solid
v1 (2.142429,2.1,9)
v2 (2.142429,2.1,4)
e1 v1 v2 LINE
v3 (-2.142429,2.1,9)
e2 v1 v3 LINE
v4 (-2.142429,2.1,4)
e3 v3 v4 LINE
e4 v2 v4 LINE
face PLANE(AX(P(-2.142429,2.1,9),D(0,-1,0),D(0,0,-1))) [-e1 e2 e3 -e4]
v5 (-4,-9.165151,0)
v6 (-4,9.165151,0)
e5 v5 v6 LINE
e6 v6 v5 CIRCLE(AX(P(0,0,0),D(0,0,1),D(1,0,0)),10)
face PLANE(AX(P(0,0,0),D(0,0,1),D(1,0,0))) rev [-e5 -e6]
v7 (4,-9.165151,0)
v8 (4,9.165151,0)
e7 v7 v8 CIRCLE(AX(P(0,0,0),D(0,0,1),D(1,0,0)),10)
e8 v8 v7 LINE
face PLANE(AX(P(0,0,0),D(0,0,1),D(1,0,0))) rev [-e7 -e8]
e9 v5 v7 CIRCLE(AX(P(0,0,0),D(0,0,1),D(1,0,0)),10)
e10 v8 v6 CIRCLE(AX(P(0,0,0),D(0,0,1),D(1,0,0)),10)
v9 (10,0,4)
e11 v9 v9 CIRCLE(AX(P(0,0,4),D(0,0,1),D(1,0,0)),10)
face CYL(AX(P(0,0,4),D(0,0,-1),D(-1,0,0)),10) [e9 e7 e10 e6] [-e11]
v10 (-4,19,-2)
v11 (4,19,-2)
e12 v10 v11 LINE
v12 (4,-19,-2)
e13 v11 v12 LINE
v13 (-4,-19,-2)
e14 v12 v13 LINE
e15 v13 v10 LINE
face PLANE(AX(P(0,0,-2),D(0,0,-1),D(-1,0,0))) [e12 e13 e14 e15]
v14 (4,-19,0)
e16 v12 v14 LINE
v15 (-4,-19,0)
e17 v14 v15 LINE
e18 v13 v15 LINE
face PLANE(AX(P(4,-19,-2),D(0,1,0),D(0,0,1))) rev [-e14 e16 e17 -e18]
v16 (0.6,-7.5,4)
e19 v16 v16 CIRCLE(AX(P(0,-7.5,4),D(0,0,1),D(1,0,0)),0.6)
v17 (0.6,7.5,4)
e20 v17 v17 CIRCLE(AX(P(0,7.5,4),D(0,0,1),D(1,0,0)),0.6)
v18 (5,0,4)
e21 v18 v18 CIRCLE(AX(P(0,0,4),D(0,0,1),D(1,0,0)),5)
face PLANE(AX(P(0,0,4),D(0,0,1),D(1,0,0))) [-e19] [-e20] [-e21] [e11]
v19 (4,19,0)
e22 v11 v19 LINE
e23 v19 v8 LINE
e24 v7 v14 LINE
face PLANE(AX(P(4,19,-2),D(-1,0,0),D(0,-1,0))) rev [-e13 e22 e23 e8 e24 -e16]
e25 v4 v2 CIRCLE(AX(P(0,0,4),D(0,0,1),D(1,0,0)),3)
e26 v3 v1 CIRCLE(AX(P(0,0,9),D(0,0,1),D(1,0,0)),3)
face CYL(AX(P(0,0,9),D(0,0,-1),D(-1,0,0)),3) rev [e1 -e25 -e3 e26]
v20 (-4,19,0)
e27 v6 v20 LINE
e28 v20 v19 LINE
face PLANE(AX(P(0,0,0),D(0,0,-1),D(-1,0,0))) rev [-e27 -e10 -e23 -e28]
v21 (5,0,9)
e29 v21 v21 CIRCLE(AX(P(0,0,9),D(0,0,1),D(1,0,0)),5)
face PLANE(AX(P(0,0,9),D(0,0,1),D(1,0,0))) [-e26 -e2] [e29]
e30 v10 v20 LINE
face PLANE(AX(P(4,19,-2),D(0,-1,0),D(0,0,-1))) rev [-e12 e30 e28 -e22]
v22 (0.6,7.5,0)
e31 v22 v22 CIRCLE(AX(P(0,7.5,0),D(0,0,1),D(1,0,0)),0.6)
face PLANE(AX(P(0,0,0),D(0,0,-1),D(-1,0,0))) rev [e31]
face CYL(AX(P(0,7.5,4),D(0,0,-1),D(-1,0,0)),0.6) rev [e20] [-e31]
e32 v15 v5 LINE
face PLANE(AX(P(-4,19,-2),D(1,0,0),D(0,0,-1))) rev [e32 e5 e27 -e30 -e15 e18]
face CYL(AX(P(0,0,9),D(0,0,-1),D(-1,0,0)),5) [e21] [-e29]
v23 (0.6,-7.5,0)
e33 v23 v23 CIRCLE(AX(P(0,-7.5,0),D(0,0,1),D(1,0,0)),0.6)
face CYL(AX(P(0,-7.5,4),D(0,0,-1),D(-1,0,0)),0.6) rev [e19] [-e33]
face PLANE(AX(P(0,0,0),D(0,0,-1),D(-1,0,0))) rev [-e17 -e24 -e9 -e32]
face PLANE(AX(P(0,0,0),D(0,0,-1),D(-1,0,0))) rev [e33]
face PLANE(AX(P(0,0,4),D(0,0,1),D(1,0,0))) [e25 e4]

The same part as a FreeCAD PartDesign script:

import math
import FreeCAD as App
import Part
import Sketcher
from FreeCAD import Vector
Q = App.Units.Quantity


def add_polygon(sketch, points):
    """Adds a closed chain of lines whose ends are joined by coincident constraints."""
    first, n = sketch.GeometryCount, len(points)
    for a, b in zip(points, points[1:] + points[:1]):
        sketch.addGeometry(Part.LineSegment(App.Vector(*a, 0), App.Vector(*b, 0)), False)
    for i in range(n):
        sketch.addConstraint(Sketcher.Constraint("Coincident", first + i, 2, first + (i + 1) % n, 1))

doc = App.newDocument("Part")
params = doc.addObject("Spreadsheet::Sheet", "Params")
for row, (alias, value) in enumerate([
    ("sketch1_diameter", "20 mm"),
    ("sketch1_diameter2", "1.2 mm"),
    ("pad1_length", "4 mm"),
    ("sketch2_diameter", "10 mm"),
    ("sketch2_radius", "3 mm"),
    ("pad2_length", "5 mm"),
    ("sketch3_width", "8 mm"),
    ("sketch3_height", "38 mm"),
    ("pad3_length", "2 mm"),
], start=1):
    params.set(f"A{row}", alias)
    params.set(f"B{row}", "=" + value)
    params.setAlias(f"B{row}", alias)

body = doc.addObject("PartDesign::Body", "Body")

# Sketch on XY plane
sketch1 = body.newObject("Sketcher::SketchObject", "Sketch")
sketch1.AttachmentSupport = (doc.getObject("XY_Plane"), [""])
sketch1.MapMode = "FlatFace"
sketch1.addGeometry([
    Part.Circle(Vector(0, 0, 0), Vector(0, 0, 1), 10),
    Part.Circle(Vector(0, -7.5, 0), Vector(0, 0, 1), 0.6),
    Part.Circle(Vector(0, 7.5, 0), Vector(0, 0, 1), 0.6),
], False)
sketch1.addConstraint([
    Sketcher.Constraint("Coincident", 0, 3, -1, 1),
    Sketcher.Constraint("Equal", 1, 2),
    Sketcher.Constraint("Symmetric", 1, 3, 2, 3, -1, 1),
    Sketcher.Constraint("PointOnObject", 1, 3, -2),
    Sketcher.Constraint("Diameter", 0, Q("20 mm")),
    Sketcher.Constraint("Diameter", 1, Q("1.2 mm")),
    Sketcher.Constraint("DistanceY", 1, 3, 2, 3, Q("15 mm")),
])
sketch1.setExpression("Constraints[4]", "Params.sketch1_diameter")
sketch1.setExpression("Constraints[5]", "Params.sketch1_diameter2")
pad1 = body.newObject("PartDesign::Pad", "Pad")
pad1.Profile = sketch1
pad1.setExpression("Length", "Params.pad1_length")

# Sketch on XY plane
sketch2 = body.newObject("Sketcher::SketchObject", "Sketch001")
sketch2.AttachmentSupport = (doc.getObject("XY_Plane"), [""])
sketch2.MapMode = "FlatFace"
sketch2.AttachmentOffset = App.Placement(Vector(0, 0, 4), App.Rotation())
sketch2.addGeometry([
    Part.Circle(Vector(0, 0, 0), Vector(0, 0, 1), 5),
    Part.ArcOfCircle(Part.Circle(Vector(0, 0, 0), Vector(0, 0, 1), 3), math.radians(135.572996), math.radians(404.427004)),
    Part.LineSegment(Vector(-2.142429, 2.1, 0), Vector(2.142429, 2.1, 0)),
], False)
sketch2.addConstraint([
    Sketcher.Constraint("Coincident", 1, 1, 2, 1),
    Sketcher.Constraint("Coincident", 2, 2, 1, 2),
    Sketcher.Constraint("Horizontal", 2),
    Sketcher.Constraint("Coincident", 0, 3, -1, 1),
    Sketcher.Constraint("Coincident", 1, 3, -1, 1),
    Sketcher.Constraint("Diameter", 0, Q("10 mm")),
    Sketcher.Constraint("Radius", 1, Q("3 mm")),
    Sketcher.Constraint("DistanceY", -1, 1, 1, 1, Q("2.1 mm")),
])
sketch2.setExpression("Constraints[5]", "Params.sketch2_diameter")
sketch2.setExpression("Constraints[6]", "Params.sketch2_radius")
pad2 = body.newObject("PartDesign::Pad", "Pad001")
pad2.Profile = sketch2
pad2.setExpression("Length", "Params.pad2_length")

# Sketch on XY plane
sketch3 = body.newObject("Sketcher::SketchObject", "Sketch002")
sketch3.AttachmentSupport = (doc.getObject("XY_Plane"), [""])
sketch3.MapMode = "FlatFace"
add_polygon(sketch3, [(4, 19), (4, -19), (-4, -19), (-4, 19)])  # lines 0-3
sketch3.addConstraint([
    Sketcher.Constraint("Vertical", 0),
    Sketcher.Constraint("Horizontal", 1),
    Sketcher.Constraint("Vertical", 2),
    Sketcher.Constraint("Horizontal", 3),
    Sketcher.Constraint("Symmetric", 0, 2, 2, 2, -1, 1),
    Sketcher.Constraint("DistanceX", 1, 2, 1, 1, Q("8 mm")),
    Sketcher.Constraint("DistanceY", 0, 2, 0, 1, Q("38 mm")),
])
sketch3.setExpression("Constraints[9]", "Params.sketch3_width")
sketch3.setExpression("Constraints[10]", "Params.sketch3_height")
pad3 = body.newObject("PartDesign::Pad", "Pad002")
pad3.Profile = sketch3
pad3.setExpression("Length", "Params.pad3_length")
pad3.Reversed = True

doc.recompute()
